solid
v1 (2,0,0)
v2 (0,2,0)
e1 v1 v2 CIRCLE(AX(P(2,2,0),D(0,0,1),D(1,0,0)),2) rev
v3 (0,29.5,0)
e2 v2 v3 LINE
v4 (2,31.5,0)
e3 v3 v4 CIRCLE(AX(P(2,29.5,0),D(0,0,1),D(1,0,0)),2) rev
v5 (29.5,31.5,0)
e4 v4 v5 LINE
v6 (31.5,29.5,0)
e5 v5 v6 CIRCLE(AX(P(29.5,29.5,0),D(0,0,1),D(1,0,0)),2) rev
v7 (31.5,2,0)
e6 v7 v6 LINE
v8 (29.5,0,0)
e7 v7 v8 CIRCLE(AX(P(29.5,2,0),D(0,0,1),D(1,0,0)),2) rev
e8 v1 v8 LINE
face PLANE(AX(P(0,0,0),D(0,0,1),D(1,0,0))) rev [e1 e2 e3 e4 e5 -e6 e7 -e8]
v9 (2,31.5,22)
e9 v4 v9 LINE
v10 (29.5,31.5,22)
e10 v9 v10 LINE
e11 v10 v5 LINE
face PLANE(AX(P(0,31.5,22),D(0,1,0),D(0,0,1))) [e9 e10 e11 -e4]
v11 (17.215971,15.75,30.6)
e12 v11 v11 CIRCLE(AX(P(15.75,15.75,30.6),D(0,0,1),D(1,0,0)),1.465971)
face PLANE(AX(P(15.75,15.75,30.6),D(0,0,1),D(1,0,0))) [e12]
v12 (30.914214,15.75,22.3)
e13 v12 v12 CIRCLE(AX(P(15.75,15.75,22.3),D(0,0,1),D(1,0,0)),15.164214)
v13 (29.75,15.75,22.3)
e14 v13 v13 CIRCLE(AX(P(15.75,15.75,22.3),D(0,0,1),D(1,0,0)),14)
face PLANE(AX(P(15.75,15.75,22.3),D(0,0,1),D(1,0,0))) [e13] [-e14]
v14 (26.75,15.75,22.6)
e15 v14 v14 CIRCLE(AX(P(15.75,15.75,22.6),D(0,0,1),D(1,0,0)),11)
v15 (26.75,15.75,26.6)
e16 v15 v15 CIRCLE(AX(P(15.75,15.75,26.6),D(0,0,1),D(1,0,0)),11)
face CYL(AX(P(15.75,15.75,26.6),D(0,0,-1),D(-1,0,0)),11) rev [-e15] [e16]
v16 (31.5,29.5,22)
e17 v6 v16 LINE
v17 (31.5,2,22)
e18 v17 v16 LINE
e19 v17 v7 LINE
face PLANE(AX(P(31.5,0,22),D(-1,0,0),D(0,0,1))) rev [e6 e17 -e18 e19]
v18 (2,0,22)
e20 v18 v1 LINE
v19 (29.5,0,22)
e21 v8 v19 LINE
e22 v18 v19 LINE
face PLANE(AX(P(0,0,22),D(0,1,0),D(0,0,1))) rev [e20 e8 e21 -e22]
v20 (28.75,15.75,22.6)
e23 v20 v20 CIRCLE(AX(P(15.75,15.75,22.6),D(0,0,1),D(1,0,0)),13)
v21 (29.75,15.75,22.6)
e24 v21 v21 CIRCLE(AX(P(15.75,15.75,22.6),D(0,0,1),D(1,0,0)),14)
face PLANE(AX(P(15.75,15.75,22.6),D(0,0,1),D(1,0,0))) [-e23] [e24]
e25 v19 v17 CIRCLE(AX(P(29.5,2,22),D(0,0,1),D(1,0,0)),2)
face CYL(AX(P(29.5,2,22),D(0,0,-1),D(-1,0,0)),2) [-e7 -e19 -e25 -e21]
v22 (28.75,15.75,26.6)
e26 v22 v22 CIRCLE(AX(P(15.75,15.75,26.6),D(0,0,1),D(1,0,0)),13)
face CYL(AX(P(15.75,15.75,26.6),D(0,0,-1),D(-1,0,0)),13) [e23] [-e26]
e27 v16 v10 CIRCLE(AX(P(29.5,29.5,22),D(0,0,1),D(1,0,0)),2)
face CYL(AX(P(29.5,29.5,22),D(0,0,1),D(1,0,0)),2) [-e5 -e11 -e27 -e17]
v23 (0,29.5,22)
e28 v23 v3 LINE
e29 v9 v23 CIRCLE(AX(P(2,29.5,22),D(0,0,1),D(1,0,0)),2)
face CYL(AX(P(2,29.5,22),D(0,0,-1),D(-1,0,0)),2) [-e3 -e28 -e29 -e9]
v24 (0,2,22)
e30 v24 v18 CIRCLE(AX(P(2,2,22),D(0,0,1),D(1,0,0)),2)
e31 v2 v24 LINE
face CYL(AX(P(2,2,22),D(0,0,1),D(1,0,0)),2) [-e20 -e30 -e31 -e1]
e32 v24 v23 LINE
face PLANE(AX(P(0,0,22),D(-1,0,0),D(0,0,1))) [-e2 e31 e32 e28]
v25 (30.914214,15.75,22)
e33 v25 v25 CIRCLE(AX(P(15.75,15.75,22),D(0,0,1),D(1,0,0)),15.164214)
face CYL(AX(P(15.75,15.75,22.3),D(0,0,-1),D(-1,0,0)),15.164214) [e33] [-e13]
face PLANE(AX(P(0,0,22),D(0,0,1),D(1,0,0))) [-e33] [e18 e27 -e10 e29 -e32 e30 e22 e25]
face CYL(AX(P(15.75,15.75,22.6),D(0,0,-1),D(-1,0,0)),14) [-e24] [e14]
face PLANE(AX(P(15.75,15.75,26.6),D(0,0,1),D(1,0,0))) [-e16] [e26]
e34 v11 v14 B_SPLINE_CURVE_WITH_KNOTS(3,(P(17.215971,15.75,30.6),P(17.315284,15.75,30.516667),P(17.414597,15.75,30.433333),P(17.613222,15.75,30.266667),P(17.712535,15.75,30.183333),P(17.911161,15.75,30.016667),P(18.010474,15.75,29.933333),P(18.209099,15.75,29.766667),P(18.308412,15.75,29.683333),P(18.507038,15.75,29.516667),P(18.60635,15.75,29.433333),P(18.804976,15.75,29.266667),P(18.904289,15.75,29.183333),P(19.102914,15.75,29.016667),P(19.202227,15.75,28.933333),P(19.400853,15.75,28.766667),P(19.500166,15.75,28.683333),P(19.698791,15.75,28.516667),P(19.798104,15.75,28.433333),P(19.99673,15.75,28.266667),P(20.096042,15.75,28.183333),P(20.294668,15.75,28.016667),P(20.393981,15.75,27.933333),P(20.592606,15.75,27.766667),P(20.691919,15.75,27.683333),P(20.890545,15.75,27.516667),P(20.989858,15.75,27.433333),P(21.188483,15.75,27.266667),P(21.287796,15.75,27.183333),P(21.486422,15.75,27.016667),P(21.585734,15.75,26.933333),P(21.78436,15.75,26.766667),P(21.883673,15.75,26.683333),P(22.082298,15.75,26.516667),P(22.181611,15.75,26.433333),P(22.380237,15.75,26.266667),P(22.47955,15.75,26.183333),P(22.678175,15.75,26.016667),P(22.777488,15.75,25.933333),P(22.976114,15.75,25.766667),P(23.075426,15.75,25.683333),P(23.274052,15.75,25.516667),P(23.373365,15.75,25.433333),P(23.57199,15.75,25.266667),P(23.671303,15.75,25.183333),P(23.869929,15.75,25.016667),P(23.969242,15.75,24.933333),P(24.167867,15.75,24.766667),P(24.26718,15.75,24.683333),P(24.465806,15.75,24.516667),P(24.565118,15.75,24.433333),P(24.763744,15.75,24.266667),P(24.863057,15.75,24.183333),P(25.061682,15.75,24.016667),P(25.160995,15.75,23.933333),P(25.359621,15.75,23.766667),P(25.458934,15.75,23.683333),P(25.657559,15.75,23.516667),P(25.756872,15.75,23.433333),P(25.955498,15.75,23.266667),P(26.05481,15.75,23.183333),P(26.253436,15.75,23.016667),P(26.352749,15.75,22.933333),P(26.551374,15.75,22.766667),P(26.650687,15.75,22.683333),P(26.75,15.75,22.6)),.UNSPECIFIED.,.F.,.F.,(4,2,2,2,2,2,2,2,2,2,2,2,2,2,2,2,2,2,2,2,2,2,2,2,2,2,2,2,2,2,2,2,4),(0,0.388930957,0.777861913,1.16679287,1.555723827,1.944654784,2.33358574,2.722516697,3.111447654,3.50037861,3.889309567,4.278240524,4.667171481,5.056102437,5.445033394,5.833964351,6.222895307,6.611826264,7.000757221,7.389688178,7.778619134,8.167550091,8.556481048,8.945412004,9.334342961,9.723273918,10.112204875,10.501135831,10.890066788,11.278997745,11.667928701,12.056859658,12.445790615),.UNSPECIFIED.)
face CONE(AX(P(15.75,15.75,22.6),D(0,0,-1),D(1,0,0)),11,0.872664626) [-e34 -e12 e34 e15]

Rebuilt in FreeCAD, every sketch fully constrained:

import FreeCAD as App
import Part
import Sketcher

V = App.Vector


def edges_at(feature, points):
    """Names of the edges that pass closest to the given points."""
    edges = feature.Shape.Edges
    near = lambda p: min(range(len(edges)), key=lambda i: edges[i].distToShape(Part.Vertex(*p))[0])
    return sorted({f"Edge{near(p) + 1}" for p in points})

doc = App.newDocument("Part")
params = doc.addObject("Spreadsheet::Sheet", "Params")
for row, (alias, value) in enumerate([
    ("sketch1_width", "31.5 mm"),
    ("pad1_length", "22 mm"),
    ("fillet_radius", "2 mm"),
    ("pad2_length", "0.3 mm"),
    ("sketch3_diameter", "28 mm"),
    ("pad3_length", "0.3 mm"),
    ("sketch4_diameter", "26 mm"),
    ("sketch4_diameter2", "22 mm"),
    ("pad4_length", "4 mm"),
    ("sketch5_diameter", "22 mm"),
    ("pad5_length", "8 mm"),
    ("pad5_taper", "-50 deg"),
], start=1):
    params.set(f"A{row}", alias)
    params.set(f"B{row}", "=" + value)
    params.setAlias(f"B{row}", alias)

body = doc.addObject("PartDesign::Body", "Body")

# Sketch on XY plane
sketch1 = body.newObject("Sketcher::SketchObject", "Sketch")
sketch1.AttachmentSupport = (doc.getObject("XY_Plane"), [""])
sketch1.MapMode = "FlatFace"
sketch1.addGeometry([
    Part.LineSegment(V(0, 32, 0), V(0, 0, 0)),
    Part.LineSegment(V(0, 0, 0), V(32, 0, 0)),
    Part.LineSegment(V(32, 0, 0), V(32, 32, 0)),
    Part.LineSegment(V(32, 32, 0), V(0, 32, 0)),
], False)
sketch1.addConstraint([
    Sketcher.Constraint("Coincident", 0, 2, 1, 1),
    Sketcher.Constraint("Coincident", 1, 2, 2, 1),
    Sketcher.Constraint("Coincident", 2, 2, 3, 1),
    Sketcher.Constraint("Coincident", 3, 2, 0, 1),
    Sketcher.Constraint("Vertical", 0),
    Sketcher.Constraint("Horizontal", 1),
    Sketcher.Constraint("Vertical", 2),
    Sketcher.Constraint("Horizontal", 3),
    Sketcher.Constraint("Coincident", 0, 2, -1, 1),
    Sketcher.Constraint("Equal", 3, 0),
    Sketcher.Constraint("DistanceX", 1, 1, 1, 2, 31.5),
])
sketch1.setExpression("Constraints[10]", "Params.sketch1_width")
pad1 = body.newObject("PartDesign::Pad", "Pad")
pad1.Profile = sketch1
pad1.setExpression("Length", "Params.pad1_length")
doc.recompute()

fillet = body.newObject("PartDesign::Fillet", "Fillet")
fillet.Base = (pad1, edges_at(pad1, [
    (0, 0, 11),
    (0, 31.5, 11),
    (31.5, 31.5, 11),
    (31.5, 0, 11),
]))
fillet.setExpression("Radius", "Params.fillet_radius")

# Sketch on XY plane
sketch2 = body.newObject("Sketcher::SketchObject", "Sketch001")
sketch2.AttachmentSupport = (doc.getObject("XY_Plane"), [""])
sketch2.MapMode = "FlatFace"
sketch2.AttachmentOffset = App.Placement(V(0, 0, 22), App.Rotation())
sketch2.addGeometry(Part.Circle(V(16, 16, 0), V(0, 0, 1), 15), False)
sketch2.addConstraint([
    Sketcher.Constraint("DistanceX", -1, 1, 0, 3, 15.75),
    Sketcher.Constraint("DistanceY", -1, 1, 0, 3, 15.75),
    Sketcher.Constraint("Diameter", 0, 30.328427),
])
pad2 = body.newObject("PartDesign::Pad", "Pad001")
pad2.Profile = sketch2
pad2.setExpression("Length", "Params.pad2_length")

# Sketch on XY plane
sketch3 = body.newObject("Sketcher::SketchObject", "Sketch002")
sketch3.AttachmentSupport = (doc.getObject("XY_Plane"), [""])
sketch3.MapMode = "FlatFace"
sketch3.AttachmentOffset = App.Placement(V(0, 0, 22.3), App.Rotation())
sketch3.addGeometry(Part.Circle(V(16, 16, 0), V(0, 0, 1), 14), False)
sketch3.addConstraint([
    Sketcher.Constraint("Diameter", 0, 28.0),
    Sketcher.Constraint("DistanceX", -1, 1, 0, 3, 15.75),
    Sketcher.Constraint("DistanceY", -1, 1, 0, 3, 15.75),
])
sketch3.setExpression("Constraints[0]", "Params.sketch3_diameter")
pad3 = body.newObject("PartDesign::Pad", "Pad002")
pad3.Profile = sketch3
pad3.setExpression("Length", "Params.pad3_length")

# Sketch on XY plane
sketch4 = body.newObject("Sketcher::SketchObject", "Sketch003")
sketch4.AttachmentSupport = (doc.getObject("XY_Plane"), [""])
sketch4.MapMode = "FlatFace"
sketch4.AttachmentOffset = App.Placement(V(0, 0, 22.6), App.Rotation())
sketch4.addGeometry([
    Part.Circle(V(16, 16, 0), V(0, 0, 1), 13),
    Part.Circle(V(16, 16, 0), V(0, 0, 1), 11),
], False)
sketch4.addConstraint([
    Sketcher.Constraint("Coincident", 1, 3, 0, 3),
    Sketcher.Constraint("Diameter", 0, 26.0),
    Sketcher.Constraint("Diameter", 1, 22.0),
    Sketcher.Constraint("DistanceX", -1, 1, 0, 3, 15.75),
    Sketcher.Constraint("DistanceY", -1, 1, 0, 3, 15.75),
])
sketch4.setExpression("Constraints[1]", "Params.sketch4_diameter")
sketch4.setExpression("Constraints[2]", "Params.sketch4_diameter2")
pad4 = body.newObject("PartDesign::Pad", "Pad003")
pad4.Profile = sketch4
pad4.setExpression("Length", "Params.pad4_length")

# Sketch on XY plane
sketch5 = body.newObject("Sketcher::SketchObject", "Sketch004")
sketch5.AttachmentSupport = (doc.getObject("XY_Plane"), [""])
sketch5.MapMode = "FlatFace"
sketch5.AttachmentOffset = App.Placement(V(0, 0, 22.6), App.Rotation())
sketch5.addGeometry(Part.Circle(V(16, 16, 0), V(0, 0, 1), 11), False)
sketch5.addConstraint([
    Sketcher.Constraint("Diameter", 0, 22.0),
    Sketcher.Constraint("DistanceX", -1, 1, 0, 3, 15.75),
    Sketcher.Constraint("DistanceY", -1, 1, 0, 3, 15.75),
])
sketch5.setExpression("Constraints[0]", "Params.sketch5_diameter")
pad5 = body.newObject("PartDesign::Pad", "Pad004")
pad5.Profile = sketch5
pad5.setExpression("Length", "Params.pad5_length")
pad5.setExpression("TaperAngle", "Params.pad5_taper")

doc.recompute()
